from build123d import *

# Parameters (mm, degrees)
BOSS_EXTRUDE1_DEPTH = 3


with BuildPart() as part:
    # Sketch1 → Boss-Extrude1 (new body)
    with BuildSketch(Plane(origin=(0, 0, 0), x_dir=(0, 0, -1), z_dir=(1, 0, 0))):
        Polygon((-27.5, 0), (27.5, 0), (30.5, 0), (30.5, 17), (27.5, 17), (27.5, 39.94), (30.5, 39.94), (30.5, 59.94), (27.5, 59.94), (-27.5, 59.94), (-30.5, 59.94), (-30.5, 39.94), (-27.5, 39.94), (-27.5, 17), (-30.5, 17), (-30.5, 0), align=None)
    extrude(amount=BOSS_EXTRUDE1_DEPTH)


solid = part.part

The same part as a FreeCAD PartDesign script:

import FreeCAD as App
import Part
import Sketcher
from FreeCAD import Vector
Q = App.Units.Quantity


def add_polygon(sketch, points):
    """Adds a closed chain of lines whose ends are joined by coincident constraints."""
    first, n = sketch.GeometryCount, len(points)
    for a, b in zip(points, points[1:] + points[:1]):
        sketch.addGeometry(Part.LineSegment(App.Vector(*a, 0), App.Vector(*b, 0)), False)
    for i in range(n):
        sketch.addConstraint(Sketcher.Constraint("Coincident", first + i, 2, first + (i + 1) % n, 1))

doc = App.newDocument("Part")
body = doc.addObject("PartDesign::Body", "Body")

# Sketch on YZ plane
sketch1 = body.newObject("Sketcher::SketchObject", "Sketch")
sketch1.AttachmentSupport = (doc.getObject("YZ_Plane"), [""])
sketch1.MapMode = "FlatFace"
add_polygon(sketch1, [(0, -30.5), (17, -30.5), (17, -27.5), (39.94, -27.5), (39.94, -30.5), (59.94, -30.5), (59.94, 30.5), (39.94, 30.5), (39.94, 27.5), (17, 27.5), (17, 30.5), (0, 30.5)])  # lines 0-11
sketch1.addConstraint([
    Sketcher.Constraint("Horizontal", 0),
    Sketcher.Constraint("Vertical", 1),
    Sketcher.Constraint("Horizontal", 2),
    Sketcher.Constraint("Vertical", 3),
    Sketcher.Constraint("Horizontal", 4),
    Sketcher.Constraint("Vertical", 5),
    Sketcher.Constraint("Horizontal", 6),
    Sketcher.Constraint("Vertical", 7),
    Sketcher.Constraint("Horizontal", 8),
    Sketcher.Constraint("Vertical", 9),
    Sketcher.Constraint("Horizontal", 10),
    Sketcher.Constraint("Vertical", 11),
    Sketcher.Constraint("Symmetric", 10, 2, 11, 2, -1, 1),
    Sketcher.Constraint("Symmetric", 3, 2, 6, 2, -1),
    Sketcher.Constraint("Symmetric", 1, 2, 8, 2, -1),
    Sketcher.Constraint("Horizontal", 0, 2, 3, 2),
    Sketcher.Constraint("DistanceX", 0, 1, 0, 2, Q("17 mm")),
    Sketcher.Constraint("DistanceX", 4, 1, 4, 2, Q("20 mm")),
    Sketcher.Constraint("DistanceY", 1, 1, 1, 2, Q("3 mm")),
    Sketcher.Constraint("DistanceY", 5, 1, 5, 2, Q("61 mm")),
    Sketcher.Constraint("DistanceX", 2, 1, 2, 2, Q("22.94 mm")),
])
pad1 = body.newObject("PartDesign::Pad", "Pad")
pad1.Profile = sketch1
pad1.Length = 3

doc.recompute()
